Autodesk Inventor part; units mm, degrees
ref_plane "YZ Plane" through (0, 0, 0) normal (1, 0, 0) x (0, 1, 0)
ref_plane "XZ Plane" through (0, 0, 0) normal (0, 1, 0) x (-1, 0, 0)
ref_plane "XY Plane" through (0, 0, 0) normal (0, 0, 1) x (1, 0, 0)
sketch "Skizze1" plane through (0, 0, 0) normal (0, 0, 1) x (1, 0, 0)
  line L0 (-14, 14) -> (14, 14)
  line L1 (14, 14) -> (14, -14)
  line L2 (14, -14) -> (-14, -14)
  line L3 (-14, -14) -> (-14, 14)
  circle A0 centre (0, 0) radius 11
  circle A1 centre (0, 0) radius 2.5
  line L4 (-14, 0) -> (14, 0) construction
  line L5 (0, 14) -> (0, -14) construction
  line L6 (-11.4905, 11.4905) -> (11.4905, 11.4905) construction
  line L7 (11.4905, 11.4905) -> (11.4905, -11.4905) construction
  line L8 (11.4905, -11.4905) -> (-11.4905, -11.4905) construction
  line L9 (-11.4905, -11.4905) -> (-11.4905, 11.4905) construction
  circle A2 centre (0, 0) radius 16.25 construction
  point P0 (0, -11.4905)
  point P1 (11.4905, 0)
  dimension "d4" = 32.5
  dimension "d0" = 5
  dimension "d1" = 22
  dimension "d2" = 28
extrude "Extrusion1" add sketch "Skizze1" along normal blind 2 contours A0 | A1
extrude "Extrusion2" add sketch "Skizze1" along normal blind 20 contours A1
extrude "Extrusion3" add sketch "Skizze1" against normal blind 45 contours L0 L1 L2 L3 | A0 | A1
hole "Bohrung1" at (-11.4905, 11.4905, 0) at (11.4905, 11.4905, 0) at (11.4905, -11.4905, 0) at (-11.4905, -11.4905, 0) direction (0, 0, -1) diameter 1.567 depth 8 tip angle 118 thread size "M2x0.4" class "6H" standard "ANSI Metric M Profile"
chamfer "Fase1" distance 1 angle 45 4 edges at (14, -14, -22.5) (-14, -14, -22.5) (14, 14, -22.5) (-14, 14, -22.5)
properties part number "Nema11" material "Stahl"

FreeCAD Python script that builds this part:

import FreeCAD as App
import Part
import Sketcher
Q = App.Units.Quantity


def edges_at(feature, points):
    """Names of the edges that pass closest to the given points."""
    edges = feature.Shape.Edges
    near = lambda p: min(range(len(edges)), key=lambda i: edges[i].distToShape(Part.Vertex(*p))[0])
    return sorted({f"Edge{near(p) + 1}" for p in points})

doc = App.newDocument("Part")
body = doc.addObject("PartDesign::Body", "Body")

# Sketch on XY plane
sketch1 = body.newObject("Sketcher::SketchObject", "Sketch")
sketch1.AttachmentSupport = (doc.getObject("XY_Plane"), [""])
sketch1.MapMode = "FlatFace"
sketch1.addGeometry(Part.Circle(App.Vector(0, 0, 0), App.Vector(0, 0, 1), 11), False)
sketch1.addConstraint(Sketcher.Constraint("Coincident", 0, 3, -1, 1))
sketch1.addConstraint(Sketcher.Constraint("Diameter", 0, Q("22 mm")))
pad1 = body.newObject("PartDesign::Pad", "Pad")
pad1.Profile = sketch1
pad1.Length = 2

# Sketch on XY plane
sketch2 = body.newObject("Sketcher::SketchObject", "Sketch001")
sketch2.AttachmentSupport = (doc.getObject("XY_Plane"), [""])
sketch2.MapMode = "FlatFace"
sketch2.addGeometry(Part.Circle(App.Vector(0, 0, 0), App.Vector(0, 0, 1), 2.5), False)
sketch2.addConstraint(Sketcher.Constraint("Coincident", 0, 3, -1, 1))
sketch2.addConstraint(Sketcher.Constraint("Diameter", 0, Q("5 mm")))
pad2 = body.newObject("PartDesign::Pad", "Pad001")
pad2.Profile = sketch2
pad2.Length = 20

# Sketch on XY plane
sketch3 = body.newObject("Sketcher::SketchObject", "Sketch002")
sketch3.AttachmentSupport = (doc.getObject("XY_Plane"), [""])
sketch3.MapMode = "FlatFace"
sketch3.addGeometry(Part.LineSegment(App.Vector(14, 14, 0), App.Vector(-14, 14, 0)), False)
sketch3.addGeometry(Part.LineSegment(App.Vector(-14, 14, 0), App.Vector(-14, -14, 0)), False)
sketch3.addGeometry(Part.LineSegment(App.Vector(-14, -14, 0), App.Vector(14, -14, 0)), False)
sketch3.addGeometry(Part.LineSegment(App.Vector(14, -14, 0), App.Vector(14, 14, 0)), False)
sketch3.addConstraint(Sketcher.Constraint("Coincident", 0, 2, 1, 1))
sketch3.addConstraint(Sketcher.Constraint("Coincident", 1, 2, 2, 1))
sketch3.addConstraint(Sketcher.Constraint("Coincident", 2, 2, 3, 1))
sketch3.addConstraint(Sketcher.Constraint("Coincident", 3, 2, 0, 1))
sketch3.addConstraint(Sketcher.Constraint("Horizontal", 0))
sketch3.addConstraint(Sketcher.Constraint("Vertical", 1))
sketch3.addConstraint(Sketcher.Constraint("Horizontal", 2))
sketch3.addConstraint(Sketcher.Constraint("Vertical", 3))
sketch3.addConstraint(Sketcher.Constraint("Symmetric", 0, 2, 2, 2, -1, 1))
sketch3.addConstraint(Sketcher.Constraint("Equal", 2, 1))
sketch3.addConstraint(Sketcher.Constraint("DistanceX", 0, 2, 0, 1, Q("28 mm")))
pad3 = body.newObject("PartDesign::Pad", "Pad002")
pad3.Profile = sketch3
pad3.Length = 45
pad3.Reversed = True

# Sketch on XY plane
sketch4 = body.newObject("Sketcher::SketchObject", "Sketch003")
sketch4.AttachmentSupport = (doc.getObject("XY_Plane"), [""])
sketch4.MapMode = "FlatFace"
sketch4.addGeometry(Part.Circle(App.Vector(-11.4905, 11.4905, 0), App.Vector(0, 0, 1), 0.7835), False)
sketch4.addGeometry(Part.Circle(App.Vector(11.4905, 11.4905, 0), App.Vector(0, 0, 1), 0.7835), False)
sketch4.addGeometry(Part.Circle(App.Vector(11.4905, -11.4905, 0), App.Vector(0, 0, 1), 0.7835), False)
sketch4.addGeometry(Part.Circle(App.Vector(-11.4905, -11.4905, 0), App.Vector(0, 0, 1), 0.7835), False)
sketch4.addConstraint(Sketcher.Constraint("Equal", 0, 1))
sketch4.addConstraint(Sketcher.Constraint("Equal", 1, 2))
sketch4.addConstraint(Sketcher.Constraint("Equal", 2, 3))
sketch4.addConstraint(Sketcher.Constraint("Symmetric", 0, 3, 2, 3, -1, 1))
sketch4.addConstraint(Sketcher.Constraint("Symmetric", 1, 3, 3, 3, -1, 1))
sketch4.addConstraint(Sketcher.Constraint("Symmetric", 0, 3, 1, 3, -2))
sketch4.addConstraint(Sketcher.Constraint("Diameter", 0, Q("1.567 mm")))
sketch4.addConstraint(Sketcher.Constraint("DistanceX", 0, 3, 1, 3, Q("22.981 mm")))
sketch4.addConstraint(Sketcher.Constraint("DistanceY", 2, 3, 1, 3, Q("22.981 mm")))
doc.recompute()
hole = body.newObject("PartDesign::Hole", "Hole")
hole.Profile = sketch4
hole.ThreadType = "None"
hole.Diameter = 1.567
hole.DepthType = "Dimension"
hole.Depth = 8
hole.DrillPoint = "Angled"
hole.DrillPointAngle = 118
doc.recompute()

chamfer = body.newObject("PartDesign::Chamfer", "Chamfer")
chamfer.Base = (hole, edges_at(hole, [
    (14, -14, -22.5),
    (-14, -14, -22.5),
    (14, 14, -22.5),
    (-14, 14, -22.5),
]))
chamfer.Size = 1

doc.recompute()
